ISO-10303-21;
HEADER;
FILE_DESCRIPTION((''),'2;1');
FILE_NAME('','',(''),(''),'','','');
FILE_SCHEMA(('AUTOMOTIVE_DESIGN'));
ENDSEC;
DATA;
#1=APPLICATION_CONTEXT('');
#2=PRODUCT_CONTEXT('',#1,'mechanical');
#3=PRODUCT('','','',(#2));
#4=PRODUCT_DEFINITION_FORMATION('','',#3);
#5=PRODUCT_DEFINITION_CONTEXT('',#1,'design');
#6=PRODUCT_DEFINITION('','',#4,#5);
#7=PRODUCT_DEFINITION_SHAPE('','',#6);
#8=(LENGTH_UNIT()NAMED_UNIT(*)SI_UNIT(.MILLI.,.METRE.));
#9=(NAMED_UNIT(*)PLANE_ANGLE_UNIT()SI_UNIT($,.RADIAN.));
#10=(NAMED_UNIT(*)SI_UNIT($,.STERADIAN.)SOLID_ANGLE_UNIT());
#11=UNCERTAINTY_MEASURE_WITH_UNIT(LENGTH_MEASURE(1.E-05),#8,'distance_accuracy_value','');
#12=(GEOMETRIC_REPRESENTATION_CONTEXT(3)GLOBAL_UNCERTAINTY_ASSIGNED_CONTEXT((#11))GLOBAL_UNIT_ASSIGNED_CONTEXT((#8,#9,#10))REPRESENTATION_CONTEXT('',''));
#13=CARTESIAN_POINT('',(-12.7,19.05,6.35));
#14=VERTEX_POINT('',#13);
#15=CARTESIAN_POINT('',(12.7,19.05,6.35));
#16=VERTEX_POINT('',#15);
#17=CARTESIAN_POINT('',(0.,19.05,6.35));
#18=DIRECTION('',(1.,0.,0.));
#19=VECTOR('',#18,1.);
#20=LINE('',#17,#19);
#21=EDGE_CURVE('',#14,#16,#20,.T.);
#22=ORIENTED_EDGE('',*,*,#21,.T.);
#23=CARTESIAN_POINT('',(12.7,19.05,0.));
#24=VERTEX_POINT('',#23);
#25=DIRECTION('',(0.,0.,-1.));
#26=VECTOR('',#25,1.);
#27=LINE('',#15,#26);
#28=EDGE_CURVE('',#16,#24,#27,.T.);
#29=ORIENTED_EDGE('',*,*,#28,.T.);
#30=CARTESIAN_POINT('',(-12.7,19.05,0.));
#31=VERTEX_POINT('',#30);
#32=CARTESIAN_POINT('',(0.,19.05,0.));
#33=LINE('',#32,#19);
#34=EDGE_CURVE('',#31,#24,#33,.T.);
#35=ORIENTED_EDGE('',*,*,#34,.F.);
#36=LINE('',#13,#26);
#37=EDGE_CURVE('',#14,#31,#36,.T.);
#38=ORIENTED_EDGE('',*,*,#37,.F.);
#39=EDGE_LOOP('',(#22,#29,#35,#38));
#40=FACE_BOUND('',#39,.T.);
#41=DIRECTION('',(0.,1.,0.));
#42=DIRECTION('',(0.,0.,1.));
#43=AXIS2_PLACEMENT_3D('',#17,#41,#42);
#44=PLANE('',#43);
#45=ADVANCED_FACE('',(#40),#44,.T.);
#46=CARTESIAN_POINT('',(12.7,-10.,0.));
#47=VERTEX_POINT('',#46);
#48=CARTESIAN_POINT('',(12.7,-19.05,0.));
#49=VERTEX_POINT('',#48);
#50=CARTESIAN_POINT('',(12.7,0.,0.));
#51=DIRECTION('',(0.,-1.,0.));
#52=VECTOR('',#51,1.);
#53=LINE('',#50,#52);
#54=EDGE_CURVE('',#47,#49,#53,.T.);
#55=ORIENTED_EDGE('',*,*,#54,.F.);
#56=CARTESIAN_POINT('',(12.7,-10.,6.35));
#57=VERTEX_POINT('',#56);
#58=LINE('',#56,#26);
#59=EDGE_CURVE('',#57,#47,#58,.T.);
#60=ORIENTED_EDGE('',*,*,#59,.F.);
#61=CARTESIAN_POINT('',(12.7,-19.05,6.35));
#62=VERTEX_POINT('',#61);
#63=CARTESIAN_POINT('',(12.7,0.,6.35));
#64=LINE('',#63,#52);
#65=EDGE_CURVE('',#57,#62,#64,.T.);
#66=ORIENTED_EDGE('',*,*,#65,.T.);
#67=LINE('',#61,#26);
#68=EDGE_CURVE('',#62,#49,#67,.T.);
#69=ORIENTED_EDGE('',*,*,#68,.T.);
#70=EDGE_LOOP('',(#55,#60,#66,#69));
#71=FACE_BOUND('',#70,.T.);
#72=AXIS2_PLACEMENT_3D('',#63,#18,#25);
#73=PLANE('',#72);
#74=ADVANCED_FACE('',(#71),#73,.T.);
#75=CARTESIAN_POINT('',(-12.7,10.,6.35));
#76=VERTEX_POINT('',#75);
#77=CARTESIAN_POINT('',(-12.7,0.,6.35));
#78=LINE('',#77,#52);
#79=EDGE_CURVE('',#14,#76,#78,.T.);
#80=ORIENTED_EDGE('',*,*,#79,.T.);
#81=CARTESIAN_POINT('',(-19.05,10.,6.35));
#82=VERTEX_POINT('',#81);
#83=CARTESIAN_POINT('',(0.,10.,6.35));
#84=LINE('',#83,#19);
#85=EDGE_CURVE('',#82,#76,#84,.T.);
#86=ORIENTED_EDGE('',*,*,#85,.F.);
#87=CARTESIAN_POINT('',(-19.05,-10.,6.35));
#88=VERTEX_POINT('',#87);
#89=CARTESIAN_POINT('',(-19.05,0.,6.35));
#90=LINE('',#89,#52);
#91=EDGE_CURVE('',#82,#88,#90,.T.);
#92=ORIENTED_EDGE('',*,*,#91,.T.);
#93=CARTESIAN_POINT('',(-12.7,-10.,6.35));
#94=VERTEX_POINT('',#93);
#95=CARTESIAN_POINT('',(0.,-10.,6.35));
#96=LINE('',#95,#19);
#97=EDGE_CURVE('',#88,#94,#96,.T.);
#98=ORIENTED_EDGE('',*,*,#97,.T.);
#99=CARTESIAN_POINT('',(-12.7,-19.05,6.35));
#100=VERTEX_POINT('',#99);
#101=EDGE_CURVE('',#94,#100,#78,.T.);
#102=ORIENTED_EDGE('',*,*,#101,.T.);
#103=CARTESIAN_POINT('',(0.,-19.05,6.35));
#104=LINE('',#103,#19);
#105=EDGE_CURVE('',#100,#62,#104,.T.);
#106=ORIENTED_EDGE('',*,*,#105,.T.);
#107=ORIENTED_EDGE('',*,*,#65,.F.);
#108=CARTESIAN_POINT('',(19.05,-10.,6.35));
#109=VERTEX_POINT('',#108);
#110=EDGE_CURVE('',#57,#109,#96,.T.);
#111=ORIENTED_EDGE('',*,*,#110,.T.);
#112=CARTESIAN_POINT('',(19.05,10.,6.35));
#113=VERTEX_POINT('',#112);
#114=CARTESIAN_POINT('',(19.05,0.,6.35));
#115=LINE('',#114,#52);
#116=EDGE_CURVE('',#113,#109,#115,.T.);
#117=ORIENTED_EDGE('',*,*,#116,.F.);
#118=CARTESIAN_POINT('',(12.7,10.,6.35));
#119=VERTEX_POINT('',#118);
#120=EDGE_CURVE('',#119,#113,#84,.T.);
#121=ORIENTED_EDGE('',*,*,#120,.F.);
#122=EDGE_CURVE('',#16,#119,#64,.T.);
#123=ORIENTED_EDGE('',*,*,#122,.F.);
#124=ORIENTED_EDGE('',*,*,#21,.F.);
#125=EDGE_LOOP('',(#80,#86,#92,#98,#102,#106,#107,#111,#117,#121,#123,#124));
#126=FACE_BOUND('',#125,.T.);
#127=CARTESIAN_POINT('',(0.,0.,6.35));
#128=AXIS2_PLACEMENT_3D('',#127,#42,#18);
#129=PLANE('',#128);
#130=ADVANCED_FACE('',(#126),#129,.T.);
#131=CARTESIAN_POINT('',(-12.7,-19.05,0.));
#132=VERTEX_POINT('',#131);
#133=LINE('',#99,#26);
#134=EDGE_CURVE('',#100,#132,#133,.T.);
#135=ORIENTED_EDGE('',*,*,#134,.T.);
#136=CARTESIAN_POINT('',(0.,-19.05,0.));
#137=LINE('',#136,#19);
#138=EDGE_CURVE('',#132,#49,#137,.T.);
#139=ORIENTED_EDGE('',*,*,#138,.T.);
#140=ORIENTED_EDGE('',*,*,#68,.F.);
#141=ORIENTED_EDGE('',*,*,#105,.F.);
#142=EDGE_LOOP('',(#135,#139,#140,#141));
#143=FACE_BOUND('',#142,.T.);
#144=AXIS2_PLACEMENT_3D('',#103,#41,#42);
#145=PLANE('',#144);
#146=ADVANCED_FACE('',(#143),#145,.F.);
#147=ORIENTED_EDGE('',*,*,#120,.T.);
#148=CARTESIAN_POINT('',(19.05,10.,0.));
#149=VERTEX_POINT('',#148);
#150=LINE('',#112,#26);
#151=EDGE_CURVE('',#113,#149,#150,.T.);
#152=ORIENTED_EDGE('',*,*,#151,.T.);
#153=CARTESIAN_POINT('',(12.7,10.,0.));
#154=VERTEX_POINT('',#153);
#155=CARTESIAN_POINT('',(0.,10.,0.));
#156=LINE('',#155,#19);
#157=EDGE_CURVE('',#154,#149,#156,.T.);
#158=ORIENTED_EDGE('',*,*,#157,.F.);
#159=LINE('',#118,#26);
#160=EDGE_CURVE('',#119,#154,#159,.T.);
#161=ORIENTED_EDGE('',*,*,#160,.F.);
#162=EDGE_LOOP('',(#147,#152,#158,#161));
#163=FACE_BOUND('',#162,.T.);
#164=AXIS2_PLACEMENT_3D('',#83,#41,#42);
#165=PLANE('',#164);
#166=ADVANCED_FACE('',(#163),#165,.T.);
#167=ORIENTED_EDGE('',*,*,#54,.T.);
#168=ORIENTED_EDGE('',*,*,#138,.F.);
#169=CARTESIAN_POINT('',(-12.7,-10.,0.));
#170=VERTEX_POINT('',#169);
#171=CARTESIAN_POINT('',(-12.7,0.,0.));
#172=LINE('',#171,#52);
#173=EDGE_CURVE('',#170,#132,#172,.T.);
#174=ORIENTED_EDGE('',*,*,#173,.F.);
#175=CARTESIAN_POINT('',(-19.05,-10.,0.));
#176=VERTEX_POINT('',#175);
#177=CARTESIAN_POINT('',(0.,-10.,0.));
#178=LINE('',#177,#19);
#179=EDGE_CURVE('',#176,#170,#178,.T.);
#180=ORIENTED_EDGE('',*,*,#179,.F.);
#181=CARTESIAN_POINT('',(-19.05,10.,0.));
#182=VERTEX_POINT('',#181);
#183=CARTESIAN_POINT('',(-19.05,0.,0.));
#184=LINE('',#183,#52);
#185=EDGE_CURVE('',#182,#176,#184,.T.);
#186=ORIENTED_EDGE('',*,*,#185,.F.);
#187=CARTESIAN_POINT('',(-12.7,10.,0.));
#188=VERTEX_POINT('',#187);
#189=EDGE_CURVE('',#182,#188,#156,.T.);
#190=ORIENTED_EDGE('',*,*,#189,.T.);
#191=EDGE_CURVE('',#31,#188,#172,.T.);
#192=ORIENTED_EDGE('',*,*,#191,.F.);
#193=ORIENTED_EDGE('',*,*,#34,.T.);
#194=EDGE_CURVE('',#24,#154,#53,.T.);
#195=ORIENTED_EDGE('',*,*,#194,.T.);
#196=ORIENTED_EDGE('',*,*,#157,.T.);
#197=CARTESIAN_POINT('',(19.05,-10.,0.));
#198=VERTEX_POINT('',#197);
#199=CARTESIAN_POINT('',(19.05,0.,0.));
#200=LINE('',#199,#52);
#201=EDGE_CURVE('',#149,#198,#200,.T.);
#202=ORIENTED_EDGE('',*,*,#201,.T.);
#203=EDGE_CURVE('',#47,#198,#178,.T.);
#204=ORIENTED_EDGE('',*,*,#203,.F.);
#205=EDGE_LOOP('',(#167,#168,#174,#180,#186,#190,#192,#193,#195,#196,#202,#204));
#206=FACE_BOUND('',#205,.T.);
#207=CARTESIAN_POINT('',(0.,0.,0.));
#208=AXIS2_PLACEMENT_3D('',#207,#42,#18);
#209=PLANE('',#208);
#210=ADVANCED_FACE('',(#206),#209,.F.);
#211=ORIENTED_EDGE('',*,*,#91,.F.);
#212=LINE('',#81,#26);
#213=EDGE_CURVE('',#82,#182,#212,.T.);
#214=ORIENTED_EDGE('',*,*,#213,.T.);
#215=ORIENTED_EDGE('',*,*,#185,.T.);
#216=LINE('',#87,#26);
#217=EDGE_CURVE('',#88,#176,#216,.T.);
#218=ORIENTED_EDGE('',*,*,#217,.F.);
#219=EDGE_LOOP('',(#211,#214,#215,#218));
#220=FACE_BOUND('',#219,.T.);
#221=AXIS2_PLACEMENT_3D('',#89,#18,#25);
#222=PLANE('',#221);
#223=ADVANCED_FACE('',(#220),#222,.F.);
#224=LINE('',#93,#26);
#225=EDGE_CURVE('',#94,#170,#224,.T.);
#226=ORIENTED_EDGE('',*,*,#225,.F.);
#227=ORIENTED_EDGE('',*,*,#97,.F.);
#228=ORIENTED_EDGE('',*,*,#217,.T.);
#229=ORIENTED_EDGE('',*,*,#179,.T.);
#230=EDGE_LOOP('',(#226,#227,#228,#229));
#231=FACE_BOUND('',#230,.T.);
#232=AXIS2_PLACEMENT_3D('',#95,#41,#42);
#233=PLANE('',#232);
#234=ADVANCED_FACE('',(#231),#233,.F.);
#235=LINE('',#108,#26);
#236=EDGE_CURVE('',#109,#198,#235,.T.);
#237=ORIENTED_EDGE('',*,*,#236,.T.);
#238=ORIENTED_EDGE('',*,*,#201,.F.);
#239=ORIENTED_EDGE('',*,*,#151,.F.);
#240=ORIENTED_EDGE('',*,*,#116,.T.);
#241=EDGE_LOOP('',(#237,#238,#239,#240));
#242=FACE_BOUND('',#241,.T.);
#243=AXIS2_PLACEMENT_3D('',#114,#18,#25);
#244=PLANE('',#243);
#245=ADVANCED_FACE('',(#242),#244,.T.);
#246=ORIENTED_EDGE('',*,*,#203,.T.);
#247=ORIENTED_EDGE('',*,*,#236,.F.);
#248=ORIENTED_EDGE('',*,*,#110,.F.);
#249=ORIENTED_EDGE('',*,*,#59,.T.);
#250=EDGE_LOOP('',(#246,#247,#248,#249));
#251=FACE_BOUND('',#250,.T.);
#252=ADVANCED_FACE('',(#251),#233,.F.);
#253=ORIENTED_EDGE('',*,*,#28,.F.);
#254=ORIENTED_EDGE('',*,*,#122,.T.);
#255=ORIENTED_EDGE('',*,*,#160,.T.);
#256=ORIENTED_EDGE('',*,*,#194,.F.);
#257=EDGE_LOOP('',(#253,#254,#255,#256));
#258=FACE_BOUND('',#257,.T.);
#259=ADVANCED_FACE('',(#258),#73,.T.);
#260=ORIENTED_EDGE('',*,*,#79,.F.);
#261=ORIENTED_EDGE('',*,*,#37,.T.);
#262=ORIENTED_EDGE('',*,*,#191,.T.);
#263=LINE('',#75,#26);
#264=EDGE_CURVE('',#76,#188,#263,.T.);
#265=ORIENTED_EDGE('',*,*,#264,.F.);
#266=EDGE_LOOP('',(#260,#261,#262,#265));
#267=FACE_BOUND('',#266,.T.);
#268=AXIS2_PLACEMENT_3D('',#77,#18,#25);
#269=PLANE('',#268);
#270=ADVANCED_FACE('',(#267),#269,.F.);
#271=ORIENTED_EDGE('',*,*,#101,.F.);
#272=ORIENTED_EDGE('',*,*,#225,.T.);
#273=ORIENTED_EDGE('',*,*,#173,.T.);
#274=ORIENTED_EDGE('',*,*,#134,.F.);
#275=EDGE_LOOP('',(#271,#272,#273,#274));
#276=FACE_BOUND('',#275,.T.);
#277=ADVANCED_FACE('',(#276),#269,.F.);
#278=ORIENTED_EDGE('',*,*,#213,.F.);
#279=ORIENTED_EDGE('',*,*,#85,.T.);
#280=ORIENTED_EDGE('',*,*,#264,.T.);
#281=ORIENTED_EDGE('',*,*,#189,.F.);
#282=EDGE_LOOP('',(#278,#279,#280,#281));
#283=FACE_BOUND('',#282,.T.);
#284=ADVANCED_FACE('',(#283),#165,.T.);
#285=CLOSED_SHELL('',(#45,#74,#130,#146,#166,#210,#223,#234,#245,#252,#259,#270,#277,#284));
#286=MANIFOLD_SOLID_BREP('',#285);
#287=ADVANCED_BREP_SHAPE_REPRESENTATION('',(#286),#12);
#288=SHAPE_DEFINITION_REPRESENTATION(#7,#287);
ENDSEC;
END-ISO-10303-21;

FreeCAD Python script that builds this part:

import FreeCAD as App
import Part
import Sketcher

V = App.Vector
Q = App.Units.Quantity


def add_polygon(sketch, points):
    """Adds a closed chain of lines whose ends are joined by coincident constraints."""
    first, n = sketch.GeometryCount, len(points)
    for a, b in zip(points, points[1:] + points[:1]):
        sketch.addGeometry(Part.LineSegment(App.Vector(*a, 0), App.Vector(*b, 0)), False)
    for i in range(n):
        sketch.addConstraint(Sketcher.Constraint("Coincident", first + i, 2, first + (i + 1) % n, 1))

doc = App.newDocument("Part")
body = doc.addObject("PartDesign::Body", "Body")

# Sketch on XY plane
sketch1 = body.newObject("Sketcher::SketchObject", "Sketch")
sketch1.AttachmentSupport = (doc.getObject("XY_Plane"), [""])
sketch1.MapMode = "FlatFace"
add_polygon(sketch1, [(-19.05, 10), (-19.05, -10), (-12.7, -10), (-12.7, -19.05), (12.7, -19.05), (12.7, -10), (19.05, -10), (19.05, 10), (12.7, 10), (12.7, 19.05), (-12.7, 19.05), (-12.7, 10)])  # lines 0-11
sketch1.addConstraint([
    Sketcher.Constraint("Vertical", 0),
    Sketcher.Constraint("Horizontal", 1),
    Sketcher.Constraint("Vertical", 2),
    Sketcher.Constraint("Horizontal", 3),
    Sketcher.Constraint("Vertical", 4),
    Sketcher.Constraint("Horizontal", 5),
    Sketcher.Constraint("Vertical", 6),
    Sketcher.Constraint("Horizontal", 7),
    Sketcher.Constraint("Vertical", 8),
    Sketcher.Constraint("Horizontal", 9),
    Sketcher.Constraint("Vertical", 10),
    Sketcher.Constraint("Horizontal", 11),
    Sketcher.Constraint("Symmetric", 0, 2, 6, 2, -1, 1),
    Sketcher.Constraint("Symmetric", 2, 2, 8, 2, -1, 1),
    Sketcher.Constraint("Symmetric", 4, 2, 10, 2, -1, 1),
    Sketcher.Constraint("Symmetric", 1, 2, 4, 2, -2),
    Sketcher.Constraint("DistanceX", 3, 1, 3, 2, Q("1 in")),
    Sketcher.Constraint("DistanceX", 1, 1, 1, 2, Q("0.25 in")),
    Sketcher.Constraint("DistanceY", 3, 2, 8, 2, Q("1.5 in")),
    Sketcher.Constraint("DistanceY", 0, 2, 0, 1, 20.0),
])
pad1 = body.newObject("PartDesign::Pad", "Pad")
pad1.Profile = sketch1
pad1.Length = Q("0.25 in")

doc.recompute()
